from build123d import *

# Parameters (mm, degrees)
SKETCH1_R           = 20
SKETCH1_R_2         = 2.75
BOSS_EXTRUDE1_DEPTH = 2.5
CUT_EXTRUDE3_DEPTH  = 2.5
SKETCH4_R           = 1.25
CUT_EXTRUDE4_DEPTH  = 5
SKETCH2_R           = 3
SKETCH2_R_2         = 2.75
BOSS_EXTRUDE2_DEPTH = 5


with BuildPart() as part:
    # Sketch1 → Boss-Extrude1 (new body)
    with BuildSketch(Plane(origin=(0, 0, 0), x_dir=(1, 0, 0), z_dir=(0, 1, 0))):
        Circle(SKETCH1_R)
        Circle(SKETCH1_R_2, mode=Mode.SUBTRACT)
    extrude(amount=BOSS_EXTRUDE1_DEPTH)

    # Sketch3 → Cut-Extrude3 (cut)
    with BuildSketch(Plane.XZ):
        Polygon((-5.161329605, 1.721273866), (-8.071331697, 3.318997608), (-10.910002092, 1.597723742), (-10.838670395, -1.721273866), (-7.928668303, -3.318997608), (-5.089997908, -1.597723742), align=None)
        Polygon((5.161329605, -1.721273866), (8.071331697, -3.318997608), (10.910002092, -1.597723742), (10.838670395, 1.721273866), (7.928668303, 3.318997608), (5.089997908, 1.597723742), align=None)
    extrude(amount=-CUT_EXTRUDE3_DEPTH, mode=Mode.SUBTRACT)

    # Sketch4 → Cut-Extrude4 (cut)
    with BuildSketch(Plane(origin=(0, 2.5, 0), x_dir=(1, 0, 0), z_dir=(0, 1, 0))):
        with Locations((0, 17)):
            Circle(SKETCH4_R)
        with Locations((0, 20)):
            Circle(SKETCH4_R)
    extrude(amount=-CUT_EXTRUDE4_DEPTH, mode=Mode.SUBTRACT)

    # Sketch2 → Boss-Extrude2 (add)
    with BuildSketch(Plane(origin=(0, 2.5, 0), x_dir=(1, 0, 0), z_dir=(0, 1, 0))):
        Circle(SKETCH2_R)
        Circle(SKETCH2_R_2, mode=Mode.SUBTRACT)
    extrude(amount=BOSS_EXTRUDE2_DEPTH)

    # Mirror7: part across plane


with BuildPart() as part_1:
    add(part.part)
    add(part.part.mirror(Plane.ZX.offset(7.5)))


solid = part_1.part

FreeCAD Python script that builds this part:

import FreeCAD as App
import Part
import Sketcher
Q = App.Units.Quantity


def add_polygon(sketch, points):
    """Adds a closed chain of lines whose ends are joined by coincident constraints."""
    first, n = sketch.GeometryCount, len(points)
    for a, b in zip(points, points[1:] + points[:1]):
        sketch.addGeometry(Part.LineSegment(App.Vector(*a, 0), App.Vector(*b, 0)), False)
    for i in range(n):
        sketch.addConstraint(Sketcher.Constraint("Coincident", first + i, 2, first + (i + 1) % n, 1))

doc = App.newDocument("Part")
body = doc.addObject("PartDesign::Body", "Body")

sketch1 = body.newObject("Sketcher::SketchObject", "Sketch")
sketch1.AttachmentSupport = (doc.getObject("XZ_Plane"), [""])
sketch1.MapMode = "FlatFace"
sketch1.addGeometry(Part.Circle(App.Vector(0, 0, 0), App.Vector(0, 0, 1), 20), False)
sketch1.addGeometry(Part.Circle(App.Vector(0, 0, 0), App.Vector(0, 0, 1), 2.75), False)
sketch1.addConstraint(Sketcher.Constraint("Coincident", 0, 3, -1, 1))
sketch1.addConstraint(Sketcher.Constraint("Coincident", 1, 3, -1, 1))
sketch1.addConstraint(Sketcher.Constraint("Diameter", 0, Q("40 mm")))
sketch1.addConstraint(Sketcher.Constraint("Diameter", 1, Q("5.5 mm")))
pad1 = body.newObject("PartDesign::Pad", "Pad")
pad1.Profile = sketch1
pad1.Length = 2.5
pad1.Reversed = True

sketch2 = body.newObject("Sketcher::SketchObject", "Sketch001")
sketch2.AttachmentSupport = (doc.getObject("XZ_Plane"), [""])
sketch2.MapMode = "FlatFace"
add_polygon(sketch2, [(-5.16133, 1.721274), (-8.071332, 3.318998), (-10.910002, 1.597724), (-10.83867, -1.721274), (-7.928668, -3.318998), (-5.089998, -1.597724)])
add_polygon(sketch2, [(5.16133, -1.721274), (8.071332, -3.318998), (10.910002, -1.597724), (10.83867, 1.721274), (7.928668, 3.318998), (5.089998, 1.597724)])
sketch2.addConstraint(Sketcher.Constraint("Symmetric", 0, 2, 6, 2, -1, 1))
sketch2.addConstraint(Sketcher.Constraint("Symmetric", 1, 2, 7, 2, -1, 1))
sketch2.addConstraint(Sketcher.Constraint("Symmetric", 2, 2, 8, 2, -1, 1))
sketch2.addConstraint(Sketcher.Constraint("Symmetric", 3, 2, 9, 2, -1, 1))
sketch2.addConstraint(Sketcher.Constraint("Symmetric", 4, 2, 10, 2, -1, 1))
sketch2.addConstraint(Sketcher.Constraint("Symmetric", 5, 2, 11, 2, -1, 1))
sketch2.addConstraint(Sketcher.Constraint("Parallel", 0, 3))
sketch2.addConstraint(Sketcher.Constraint("Parallel", 1, 4))
sketch2.addConstraint(Sketcher.Constraint("Parallel", 2, 5))
sketch2.addConstraint(Sketcher.Constraint("Horizontal", 3, 2, 6, 2))
sketch2.addConstraint(Sketcher.Constraint("Horizontal", 4, 2, 7, 2))
sketch2.addConstraint(Sketcher.Constraint("Equal", 0, 1))
sketch2.addConstraint(Sketcher.Constraint("Equal", 1, 2))
sketch2.addConstraint(Sketcher.Constraint("DistanceX", 3, 2, 6, 2, Q("16 mm")))
sketch2.addConstraint(Sketcher.Constraint("DistanceX", 0, 2, -1, 1, Q("8.071332 mm")))
sketch2.addConstraint(Sketcher.Constraint("DistanceX", 2, 2, -1, 1, Q("10.83867 mm")))
sketch2.addConstraint(Sketcher.Constraint("DistanceX", 1, 2, 0, 2, Q("2.83867 mm")))
sketch2.addConstraint(Sketcher.Constraint("DistanceY", 2, 2, 0, 2, Q("5.040271 mm")))
pocket1 = body.newObject("PartDesign::Pocket", "Pocket")
pocket1.Profile = sketch2
pocket1.Length = 2.5

sketch3 = body.newObject("Sketcher::SketchObject", "Sketch002")
sketch3.AttachmentSupport = (doc.getObject("XZ_Plane"), [""])
sketch3.MapMode = "FlatFace"
sketch3.AttachmentOffset = App.Placement(App.Vector(0, 0, -2.5), App.Rotation())
sketch3.addGeometry(Part.Circle(App.Vector(0, -17, 0), App.Vector(0, 0, 1), 1.25), False)
sketch3.addGeometry(Part.Circle(App.Vector(0, -20, 0), App.Vector(0, 0, 1), 1.25), False)
sketch3.addConstraint(Sketcher.Constraint("Equal", 0, 1))
sketch3.addConstraint(Sketcher.Constraint("PointOnObject", 0, 3, -2))
sketch3.addConstraint(Sketcher.Constraint("PointOnObject", 1, 3, -2))
sketch3.addConstraint(Sketcher.Constraint("Diameter", 0, Q("2.5 mm")))
sketch3.addConstraint(Sketcher.Constraint("DistanceY", 0, 3, -1, 1, Q("17 mm")))
sketch3.addConstraint(Sketcher.Constraint("DistanceY", 1, 3, -1, 1, Q("20 mm")))
pocket2 = body.newObject("PartDesign::Pocket", "Pocket001")
pocket2.Profile = sketch3
pocket2.Length = 5
pocket2.Reversed = True

sketch4 = body.newObject("Sketcher::SketchObject", "Sketch003")
sketch4.AttachmentSupport = (doc.getObject("XZ_Plane"), [""])
sketch4.MapMode = "FlatFace"
sketch4.AttachmentOffset = App.Placement(App.Vector(0, 0, -2.5), App.Rotation())
sketch4.addGeometry(Part.Circle(App.Vector(0, 0, 0), App.Vector(0, 0, 1), 3), False)
sketch4.addGeometry(Part.Circle(App.Vector(0, 0, 0), App.Vector(0, 0, 1), 2.75), False)
sketch4.addConstraint(Sketcher.Constraint("Coincident", 0, 3, -1, 1))
sketch4.addConstraint(Sketcher.Constraint("Coincident", 1, 3, -1, 1))
sketch4.addConstraint(Sketcher.Constraint("Diameter", 0, Q("6 mm")))
sketch4.addConstraint(Sketcher.Constraint("Diameter", 1, Q("5.5 mm")))
pad2 = body.newObject("PartDesign::Pad", "Pad001")
pad2.Profile = sketch4
pad2.Length = 5
pad2.Reversed = True
body2 = doc.addObject("PartDesign::Body", "Body001")
doc.recompute()

body2.BaseFeature = body
doc.recompute()

mirroring = doc.addObject("Part::Mirroring", "Mirroring")
mirroring.Source = body
mirroring.Base = App.Vector(0, 7.5, 0)
mirroring.Normal = App.Vector(0, 1, 0)
body3 = doc.addObject("PartDesign::Body", "Body002")
body3.BaseFeature = mirroring
boolean = body2.newObject("PartDesign::Boolean", "Boolean")
boolean.Type = "Fuse"
boolean.addObjects([body3])
doc.recompute()
mirroring.Visibility = False

doc.recompute()
